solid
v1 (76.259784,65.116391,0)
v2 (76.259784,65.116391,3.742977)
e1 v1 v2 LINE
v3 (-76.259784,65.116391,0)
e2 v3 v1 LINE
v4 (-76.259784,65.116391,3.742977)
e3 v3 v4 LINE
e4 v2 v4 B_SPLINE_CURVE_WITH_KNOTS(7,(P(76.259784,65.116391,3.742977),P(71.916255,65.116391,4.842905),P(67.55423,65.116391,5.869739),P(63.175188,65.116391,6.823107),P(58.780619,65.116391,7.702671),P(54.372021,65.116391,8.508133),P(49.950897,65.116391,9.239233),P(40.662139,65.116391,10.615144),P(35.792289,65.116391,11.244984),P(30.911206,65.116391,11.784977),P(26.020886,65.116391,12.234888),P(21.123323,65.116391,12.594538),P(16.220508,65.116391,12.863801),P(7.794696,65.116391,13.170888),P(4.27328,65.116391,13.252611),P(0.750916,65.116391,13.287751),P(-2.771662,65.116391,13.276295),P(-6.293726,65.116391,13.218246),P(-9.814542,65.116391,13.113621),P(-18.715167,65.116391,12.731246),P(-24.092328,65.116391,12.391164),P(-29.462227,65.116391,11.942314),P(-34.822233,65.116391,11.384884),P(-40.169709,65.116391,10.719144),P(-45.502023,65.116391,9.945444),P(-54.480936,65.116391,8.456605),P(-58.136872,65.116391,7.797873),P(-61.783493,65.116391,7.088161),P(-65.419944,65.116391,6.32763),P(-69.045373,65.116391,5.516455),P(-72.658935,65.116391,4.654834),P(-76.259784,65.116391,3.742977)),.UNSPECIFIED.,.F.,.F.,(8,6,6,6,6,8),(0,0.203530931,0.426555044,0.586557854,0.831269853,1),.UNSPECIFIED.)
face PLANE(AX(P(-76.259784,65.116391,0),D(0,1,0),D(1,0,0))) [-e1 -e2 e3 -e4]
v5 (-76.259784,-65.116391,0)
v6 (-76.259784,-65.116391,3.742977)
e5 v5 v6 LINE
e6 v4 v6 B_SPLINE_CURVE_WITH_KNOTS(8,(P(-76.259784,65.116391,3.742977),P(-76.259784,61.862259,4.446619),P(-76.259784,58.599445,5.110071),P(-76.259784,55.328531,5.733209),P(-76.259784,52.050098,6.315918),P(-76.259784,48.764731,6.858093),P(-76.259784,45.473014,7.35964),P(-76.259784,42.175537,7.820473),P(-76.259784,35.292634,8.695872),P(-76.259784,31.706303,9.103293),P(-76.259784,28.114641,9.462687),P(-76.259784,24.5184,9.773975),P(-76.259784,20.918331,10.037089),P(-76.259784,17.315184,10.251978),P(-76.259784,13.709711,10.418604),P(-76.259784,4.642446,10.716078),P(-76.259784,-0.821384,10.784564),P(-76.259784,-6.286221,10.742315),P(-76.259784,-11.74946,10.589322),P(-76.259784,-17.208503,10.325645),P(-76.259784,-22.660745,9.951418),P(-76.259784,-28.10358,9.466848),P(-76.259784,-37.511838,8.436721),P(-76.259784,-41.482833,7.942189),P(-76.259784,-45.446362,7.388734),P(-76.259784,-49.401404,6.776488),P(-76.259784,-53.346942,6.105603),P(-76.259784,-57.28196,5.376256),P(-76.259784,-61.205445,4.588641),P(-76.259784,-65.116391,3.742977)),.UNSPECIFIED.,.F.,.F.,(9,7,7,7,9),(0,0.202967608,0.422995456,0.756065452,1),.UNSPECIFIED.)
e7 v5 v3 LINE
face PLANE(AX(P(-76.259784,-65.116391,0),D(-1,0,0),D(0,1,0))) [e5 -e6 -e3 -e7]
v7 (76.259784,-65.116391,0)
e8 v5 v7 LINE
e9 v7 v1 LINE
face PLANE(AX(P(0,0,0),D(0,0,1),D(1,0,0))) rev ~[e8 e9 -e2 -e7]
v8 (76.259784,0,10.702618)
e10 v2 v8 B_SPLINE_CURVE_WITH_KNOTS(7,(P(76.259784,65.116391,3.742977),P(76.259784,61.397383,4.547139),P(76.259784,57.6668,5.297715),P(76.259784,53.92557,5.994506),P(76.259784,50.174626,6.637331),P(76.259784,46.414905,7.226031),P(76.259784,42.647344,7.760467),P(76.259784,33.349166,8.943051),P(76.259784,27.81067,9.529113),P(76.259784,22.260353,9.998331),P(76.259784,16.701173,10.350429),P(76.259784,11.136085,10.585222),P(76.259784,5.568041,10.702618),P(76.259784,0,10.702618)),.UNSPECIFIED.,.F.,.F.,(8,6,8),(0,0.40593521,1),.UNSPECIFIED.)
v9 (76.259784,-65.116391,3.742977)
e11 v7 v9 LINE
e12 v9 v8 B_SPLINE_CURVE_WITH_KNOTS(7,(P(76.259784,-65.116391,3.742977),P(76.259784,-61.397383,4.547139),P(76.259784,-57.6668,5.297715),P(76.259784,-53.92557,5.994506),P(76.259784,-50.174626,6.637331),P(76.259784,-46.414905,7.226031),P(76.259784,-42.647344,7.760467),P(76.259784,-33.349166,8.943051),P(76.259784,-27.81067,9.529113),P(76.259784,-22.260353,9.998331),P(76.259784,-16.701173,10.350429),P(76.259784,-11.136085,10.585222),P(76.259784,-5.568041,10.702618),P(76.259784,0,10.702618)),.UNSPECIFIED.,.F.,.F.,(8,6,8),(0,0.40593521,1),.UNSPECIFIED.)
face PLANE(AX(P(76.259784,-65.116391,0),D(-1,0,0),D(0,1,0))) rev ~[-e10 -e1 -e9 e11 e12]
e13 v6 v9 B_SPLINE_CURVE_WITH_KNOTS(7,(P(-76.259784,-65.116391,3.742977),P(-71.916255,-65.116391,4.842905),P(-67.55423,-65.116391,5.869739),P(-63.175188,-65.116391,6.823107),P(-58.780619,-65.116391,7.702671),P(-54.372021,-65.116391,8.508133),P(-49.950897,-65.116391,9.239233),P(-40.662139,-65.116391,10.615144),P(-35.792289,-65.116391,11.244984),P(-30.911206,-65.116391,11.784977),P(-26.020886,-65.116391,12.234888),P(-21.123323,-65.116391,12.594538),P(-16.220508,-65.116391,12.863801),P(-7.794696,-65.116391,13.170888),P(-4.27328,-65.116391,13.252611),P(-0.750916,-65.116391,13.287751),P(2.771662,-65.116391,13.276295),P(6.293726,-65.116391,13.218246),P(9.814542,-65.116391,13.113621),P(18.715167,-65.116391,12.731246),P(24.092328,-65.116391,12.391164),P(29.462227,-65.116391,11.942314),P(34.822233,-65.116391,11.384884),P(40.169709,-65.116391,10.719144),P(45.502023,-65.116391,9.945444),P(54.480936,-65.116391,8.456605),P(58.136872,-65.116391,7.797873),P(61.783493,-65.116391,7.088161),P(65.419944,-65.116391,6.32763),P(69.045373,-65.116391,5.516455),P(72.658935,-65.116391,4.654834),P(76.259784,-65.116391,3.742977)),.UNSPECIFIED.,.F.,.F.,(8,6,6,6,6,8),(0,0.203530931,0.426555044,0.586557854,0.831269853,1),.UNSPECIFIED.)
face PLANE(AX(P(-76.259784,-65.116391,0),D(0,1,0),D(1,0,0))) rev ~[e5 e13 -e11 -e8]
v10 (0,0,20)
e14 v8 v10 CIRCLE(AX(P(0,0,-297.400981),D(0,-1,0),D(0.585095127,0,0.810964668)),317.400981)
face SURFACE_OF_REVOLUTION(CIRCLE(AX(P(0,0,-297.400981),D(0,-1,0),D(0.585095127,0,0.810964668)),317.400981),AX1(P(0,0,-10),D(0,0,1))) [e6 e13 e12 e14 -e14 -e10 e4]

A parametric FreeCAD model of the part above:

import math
import FreeCAD as App
import Part
import Sketcher
from FreeCAD import Vector
Q = App.Units.Quantity


def add_polygon(sketch, points):
    """Adds a closed chain of lines whose ends are joined by coincident constraints."""
    first, n = sketch.GeometryCount, len(points)
    for a, b in zip(points, points[1:] + points[:1]):
        sketch.addGeometry(Part.LineSegment(App.Vector(*a, 0), App.Vector(*b, 0)), False)
    for i in range(n):
        sketch.addConstraint(Sketcher.Constraint("Coincident", first + i, 2, first + (i + 1) % n, 1))

doc = App.newDocument("Part")
body = doc.addObject("PartDesign::Body", "Body")

# Sketch on XZ plane
sketch1 = doc.addObject("Sketcher::SketchObject", "Sketch")
body.addObject(sketch1)
sketch1.AttachmentSupport = (doc.XZ_Plane, [""])
sketch1.MapMode = "FlatFace"
sketch1.addGeometry(Part.LineSegment(Vector(0, 20, 0), Vector(0, -40, 0)), False)
sketch1.addGeometry(Part.LineSegment(Vector(0, -40, 0), Vector(186, -40, 0)), False)
sketch1.addGeometry(Part.ArcOfCircle(Part.Circle(Vector(0, -297, 0), Vector(0, 0, 1), 317), math.radians(54), math.radians(90)), False)
sketch1.addConstraint(Sketcher.Constraint("Coincident", 0, 2, 1, 1))
sketch1.addConstraint(Sketcher.Constraint("Coincident", 1, 2, 2, 1))
sketch1.addConstraint(Sketcher.Constraint("Coincident", 2, 2, 0, 1))
sketch1.addConstraint(Sketcher.Constraint("Vertical", 0))
sketch1.addConstraint(Sketcher.Constraint("Horizontal", 1))
sketch1.addConstraint(Sketcher.Constraint("PointOnObject", 2, 3, -2))
sketch1.addConstraint(Sketcher.Constraint("PointOnObject", 0, 2, -2))
sketch1.addConstraint(Sketcher.Constraint("DistanceY", 0, 2, 0, 1, Q("60 mm")))
sketch1.addConstraint(Sketcher.Constraint("DistanceY", 0, 2, -1, 1, Q("40 mm")))
sketch1.addConstraint(Sketcher.Constraint("Radius", 2, Q("317.400981 mm")))
revolution = doc.addObject("PartDesign::Revolution", "Revolution")
body.addObject(revolution)
revolution.Profile = sketch1
revolution.ReferenceAxis = (sketch1, ["V_Axis"])
revolution.Angle = 360
body2 = doc.addObject("PartDesign::Body", "Body001")

# Sketch on XY plane
sketch2 = doc.addObject("Sketcher::SketchObject", "Sketch001")
body2.addObject(sketch2)
sketch2.AttachmentSupport = (doc.getObject("XY_Plane001"), [""])
sketch2.MapMode = "FlatFace"
add_polygon(sketch2, [(-76, 65), (-76, -65), (76, -65), (76, 65)])  # lines 0-3
sketch2.addConstraint(Sketcher.Constraint("Vertical", 0))
sketch2.addConstraint(Sketcher.Constraint("Horizontal", 1))
sketch2.addConstraint(Sketcher.Constraint("Vertical", 2))
sketch2.addConstraint(Sketcher.Constraint("Horizontal", 3))
sketch2.addConstraint(Sketcher.Constraint("Symmetric", 0, 2, 2, 2, -1, 1))
sketch2.addConstraint(Sketcher.Constraint("DistanceX", 1, 1, 1, 2, Q("152.519568 mm")))
sketch2.addConstraint(Sketcher.Constraint("DistanceY", 0, 2, 0, 1, Q("130.232782 mm")))
pad1 = doc.addObject("PartDesign::Pad", "Pad")
body2.addObject(pad1)
pad1.Profile = sketch2
pad1.Length = 36.1
doc.recompute()

boolean = doc.addObject("PartDesign::Boolean", "Boolean")
body.addObject(boolean)
boolean.Type = "Common"
boolean.addObjects([body2])

doc.recompute()
